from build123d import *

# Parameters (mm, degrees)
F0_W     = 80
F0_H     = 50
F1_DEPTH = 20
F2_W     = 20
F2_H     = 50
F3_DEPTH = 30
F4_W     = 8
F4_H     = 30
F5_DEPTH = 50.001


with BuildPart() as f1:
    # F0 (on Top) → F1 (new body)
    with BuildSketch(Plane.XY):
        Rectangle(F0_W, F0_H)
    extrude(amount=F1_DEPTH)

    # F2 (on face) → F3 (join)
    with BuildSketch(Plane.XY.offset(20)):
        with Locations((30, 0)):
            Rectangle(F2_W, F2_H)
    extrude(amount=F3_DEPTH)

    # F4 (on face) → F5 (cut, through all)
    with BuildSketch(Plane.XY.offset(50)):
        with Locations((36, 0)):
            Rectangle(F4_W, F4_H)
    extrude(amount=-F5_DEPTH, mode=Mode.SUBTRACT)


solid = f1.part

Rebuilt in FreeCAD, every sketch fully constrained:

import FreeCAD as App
import Part
import Sketcher
Q = App.Units.Quantity


def add_polygon(sketch, points):
    """Adds a closed chain of lines whose ends are joined by coincident constraints."""
    first, n = sketch.GeometryCount, len(points)
    for a, b in zip(points, points[1:] + points[:1]):
        sketch.addGeometry(Part.LineSegment(App.Vector(*a, 0), App.Vector(*b, 0)), False)
    for i in range(n):
        sketch.addConstraint(Sketcher.Constraint("Coincident", first + i, 2, first + (i + 1) % n, 1))

doc = App.newDocument("Part")
body = doc.addObject("PartDesign::Body", "Body")

sketch1 = body.newObject("Sketcher::SketchObject", "Sketch")
sketch1.AttachmentSupport = (doc.getObject("XY_Plane"), [""])
sketch1.MapMode = "FlatFace"
add_polygon(sketch1, [(-40, 25), (-40, -25), (40, -25), (40, 25)])
sketch1.addConstraint(Sketcher.Constraint("Vertical", 0))
sketch1.addConstraint(Sketcher.Constraint("Horizontal", 1))
sketch1.addConstraint(Sketcher.Constraint("Vertical", 2))
sketch1.addConstraint(Sketcher.Constraint("Horizontal", 3))
sketch1.addConstraint(Sketcher.Constraint("Symmetric", 0, 2, 2, 2, -1, 1))
sketch1.addConstraint(Sketcher.Constraint("DistanceX", 1, 1, 1, 2, Q("80 mm")))
sketch1.addConstraint(Sketcher.Constraint("DistanceY", 0, 2, 0, 1, Q("50 mm")))
pad1 = body.newObject("PartDesign::Pad", "Pad")
pad1.Profile = sketch1
pad1.Length = 20

sketch2 = body.newObject("Sketcher::SketchObject", "Sketch001")
sketch2.AttachmentSupport = (doc.getObject("XY_Plane"), [""])
sketch2.MapMode = "FlatFace"
sketch2.AttachmentOffset = App.Placement(App.Vector(0, 0, 20), App.Rotation())
add_polygon(sketch2, [(20, 25), (20, -25), (40, -25), (40, 25)])
sketch2.addConstraint(Sketcher.Constraint("Vertical", 0))
sketch2.addConstraint(Sketcher.Constraint("Horizontal", 1))
sketch2.addConstraint(Sketcher.Constraint("Vertical", 2))
sketch2.addConstraint(Sketcher.Constraint("Horizontal", 3))
sketch2.addConstraint(Sketcher.Constraint("DistanceX", 1, 1, 1, 2, Q("20 mm")))
sketch2.addConstraint(Sketcher.Constraint("DistanceY", 0, 2, 0, 1, Q("50 mm")))
sketch2.addConstraint(Sketcher.Constraint("DistanceX", -1, 1, 0, 2, Q("20 mm")))
sketch2.addConstraint(Sketcher.Constraint("DistanceY", 0, 2, -1, 1, Q("25 mm")))
pad2 = body.newObject("PartDesign::Pad", "Pad001")
pad2.Profile = sketch2
pad2.Length = 30

sketch3 = body.newObject("Sketcher::SketchObject", "Sketch002")
sketch3.AttachmentSupport = (doc.getObject("XY_Plane"), [""])
sketch3.MapMode = "FlatFace"
sketch3.AttachmentOffset = App.Placement(App.Vector(0, 0, 50), App.Rotation())
add_polygon(sketch3, [(32, 15), (32, -15), (40, -15), (40, 15)])
sketch3.addConstraint(Sketcher.Constraint("Vertical", 0))
sketch3.addConstraint(Sketcher.Constraint("Horizontal", 1))
sketch3.addConstraint(Sketcher.Constraint("Vertical", 2))
sketch3.addConstraint(Sketcher.Constraint("Horizontal", 3))
sketch3.addConstraint(Sketcher.Constraint("DistanceX", 1, 1, 1, 2, Q("8 mm")))
sketch3.addConstraint(Sketcher.Constraint("DistanceY", 0, 2, 0, 1, Q("30 mm")))
sketch3.addConstraint(Sketcher.Constraint("DistanceX", -1, 1, 0, 2, Q("32 mm")))
sketch3.addConstraint(Sketcher.Constraint("DistanceY", 0, 2, -1, 1, Q("15 mm")))
pocket1 = body.newObject("PartDesign::Pocket", "Pocket")
pocket1.Profile = sketch3
pocket1.Type = "ThroughAll"

doc.recompute()
